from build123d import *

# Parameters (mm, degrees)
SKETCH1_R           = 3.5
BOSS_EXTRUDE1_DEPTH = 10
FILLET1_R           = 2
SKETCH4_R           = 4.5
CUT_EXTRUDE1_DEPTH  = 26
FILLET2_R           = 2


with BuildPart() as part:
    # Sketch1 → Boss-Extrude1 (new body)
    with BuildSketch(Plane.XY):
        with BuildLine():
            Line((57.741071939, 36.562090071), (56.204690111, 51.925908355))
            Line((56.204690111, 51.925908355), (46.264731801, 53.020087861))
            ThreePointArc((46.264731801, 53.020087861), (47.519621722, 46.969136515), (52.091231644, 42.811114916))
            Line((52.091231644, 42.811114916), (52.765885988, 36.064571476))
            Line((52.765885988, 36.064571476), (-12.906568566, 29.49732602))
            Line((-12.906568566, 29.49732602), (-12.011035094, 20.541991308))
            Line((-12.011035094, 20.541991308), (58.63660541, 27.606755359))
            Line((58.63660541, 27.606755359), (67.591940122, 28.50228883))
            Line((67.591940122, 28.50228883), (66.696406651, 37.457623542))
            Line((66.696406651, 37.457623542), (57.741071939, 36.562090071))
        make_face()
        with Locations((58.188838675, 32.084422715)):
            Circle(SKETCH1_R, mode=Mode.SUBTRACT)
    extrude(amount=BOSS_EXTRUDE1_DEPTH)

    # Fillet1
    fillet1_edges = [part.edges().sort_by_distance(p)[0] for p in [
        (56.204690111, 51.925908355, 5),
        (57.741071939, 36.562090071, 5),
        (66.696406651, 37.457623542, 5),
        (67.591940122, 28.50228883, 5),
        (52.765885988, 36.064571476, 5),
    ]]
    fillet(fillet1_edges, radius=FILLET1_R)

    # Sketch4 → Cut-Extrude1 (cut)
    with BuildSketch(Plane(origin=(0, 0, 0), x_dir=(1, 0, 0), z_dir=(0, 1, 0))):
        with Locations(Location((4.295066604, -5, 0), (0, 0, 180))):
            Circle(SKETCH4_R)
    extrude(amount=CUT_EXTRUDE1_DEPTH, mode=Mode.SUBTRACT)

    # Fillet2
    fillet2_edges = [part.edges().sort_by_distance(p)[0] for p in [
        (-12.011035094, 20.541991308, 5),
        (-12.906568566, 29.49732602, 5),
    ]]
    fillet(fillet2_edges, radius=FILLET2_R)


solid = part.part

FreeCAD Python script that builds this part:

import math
import FreeCAD as App
import Part
import Sketcher


def edges_at(feature, points):
    """Names of the edges that pass closest to the given points."""
    edges = feature.Shape.Edges
    near = lambda p: min(range(len(edges)), key=lambda i: edges[i].distToShape(Part.Vertex(*p))[0])
    return sorted({f"Edge{near(p) + 1}" for p in points})

doc = App.newDocument("Part")
body = doc.addObject("PartDesign::Body", "Body")

sketch1 = body.newObject("Sketcher::SketchObject", "Sketch")
sketch1.AttachmentSupport = (doc.getObject("XY_Plane"), [""])
sketch1.MapMode = "FlatFace"
sketch1.addGeometry(Part.LineSegment(App.Vector(57.7, 36.6, 0), App.Vector(56.2, 51.9, 0)), False)
sketch1.addGeometry(Part.LineSegment(App.Vector(56.2, 51.9, 0), App.Vector(46.3, 53, 0)), False)
sketch1.addGeometry(Part.ArcOfCircle(Part.Circle(App.Vector(56.2, 51.9, 0), App.Vector(0, 0, 1), 10), math.radians(174), math.radians(246)), False)
sketch1.addGeometry(Part.LineSegment(App.Vector(52.1, 42.8, 0), App.Vector(52.8, 36.1, 0)), False)
sketch1.addGeometry(Part.LineSegment(App.Vector(52.8, 36.1, 0), App.Vector(-12.9, 29.5, 0)), False)
sketch1.addGeometry(Part.LineSegment(App.Vector(-12.9, 29.5, 0), App.Vector(-12, 20.5, 0)), False)
sketch1.addGeometry(Part.LineSegment(App.Vector(-12, 20.5, 0), App.Vector(58.6, 27.6, 0)), False)
sketch1.addGeometry(Part.LineSegment(App.Vector(58.6, 27.6, 0), App.Vector(67.6, 28.5, 0)), False)
sketch1.addGeometry(Part.LineSegment(App.Vector(67.6, 28.5, 0), App.Vector(66.7, 37.5, 0)), False)
sketch1.addGeometry(Part.LineSegment(App.Vector(66.7, 37.5, 0), App.Vector(57.7, 36.6, 0)), False)
sketch1.addGeometry(Part.Circle(App.Vector(58.2, 32.1, 0), App.Vector(0, 0, 1), 3.5), False)
sketch1.addConstraint(Sketcher.Constraint("Coincident", 0, 2, 1, 1))
sketch1.addConstraint(Sketcher.Constraint("Coincident", 1, 2, 2, 1))
sketch1.addConstraint(Sketcher.Constraint("Coincident", 2, 2, 3, 1))
sketch1.addConstraint(Sketcher.Constraint("Coincident", 3, 2, 4, 1))
sketch1.addConstraint(Sketcher.Constraint("Coincident", 4, 2, 5, 1))
sketch1.addConstraint(Sketcher.Constraint("Coincident", 5, 2, 6, 1))
sketch1.addConstraint(Sketcher.Constraint("Coincident", 6, 2, 7, 1))
sketch1.addConstraint(Sketcher.Constraint("Coincident", 7, 2, 8, 1))
sketch1.addConstraint(Sketcher.Constraint("Coincident", 8, 2, 9, 1))
sketch1.addConstraint(Sketcher.Constraint("Coincident", 9, 2, 0, 1))
sketch1.addConstraint(Sketcher.Constraint("Coincident", 0, 2, 2, 3))
sketch1.addConstraint(Sketcher.Constraint("Parallel", 0, 3))
sketch1.addConstraint(Sketcher.Constraint("Perpendicular", 3, 4))
sketch1.addConstraint(Sketcher.Constraint("Perpendicular", 4, 5))
sketch1.addConstraint(Sketcher.Constraint("Perpendicular", 5, 6))
sketch1.addConstraint(Sketcher.Constraint("Parallel", 6, 7))
sketch1.addConstraint(Sketcher.Constraint("Perpendicular", 7, 8))
sketch1.addConstraint(Sketcher.Constraint("Perpendicular", 8, 9))
sketch1.addConstraint(Sketcher.Constraint("Equal", 5, 7))
sketch1.addConstraint(Sketcher.Constraint("Equal", 7, 8))
sketch1.addConstraint(Sketcher.Constraint("Equal", 8, 9))
sketch1.addConstraint(Sketcher.Constraint("Diameter", 10, 7.0))
sketch1.addConstraint(Sketcher.Constraint("Radius", 2, 10.0))
sketch1.addConstraint(Sketcher.Constraint("Distance", 4, 66.0))
sketch1.addConstraint(Sketcher.Constraint("Distance", 5, 9.0))
sketch1.addConstraint(Sketcher.Constraint("Distance", 6, 71.0))
sketch1.addConstraint(Sketcher.Constraint("DistanceX", 1, 2, 2, 2, 5.8265))
sketch1.addConstraint(Sketcher.Constraint("DistanceX", 4, 2, 1, 2, 59.1713))
sketch1.addConstraint(Sketcher.Constraint("DistanceX", 10, 3, 7, 2, 9.403101))
sketch1.addConstraint(Sketcher.Constraint("DistanceY", 10, 3, 8, 2, 5.373201))
sketch1.addConstraint(Sketcher.Constraint("DistanceX", 6, 2, 8, 2, 8.059801))
sketch1.addConstraint(Sketcher.Constraint("DistanceX", -1, 1, 2, 3, 56.20469))
sketch1.addConstraint(Sketcher.Constraint("DistanceY", -1, 1, 2, 3, 51.925908))
pad1 = body.newObject("PartDesign::Pad", "Pad")
pad1.Profile = sketch1
pad1.Length = 10
doc.recompute()

fillet = body.newObject("PartDesign::Fillet", "Fillet")
fillet.Base = (pad1, edges_at(pad1, [
    (56.205, 51.926, 5),
    (57.741, 36.562, 5),
    (66.696, 37.458, 5),
    (67.592, 28.502, 5),
    (52.766, 36.065, 5),
]))
fillet.Radius = 2

sketch2 = body.newObject("Sketcher::SketchObject", "Sketch001")
sketch2.AttachmentSupport = (doc.getObject("XZ_Plane"), [""])
sketch2.MapMode = "FlatFace"
sketch2.addGeometry(Part.Circle(App.Vector(4.3, 5, 0), App.Vector(0, 0, 1), 4.5), False)
sketch2.addConstraint(Sketcher.Constraint("Diameter", 0, 9.0))
sketch2.addConstraint(Sketcher.Constraint("DistanceY", -1, 1, 0, 3, 5.0))
sketch2.addConstraint(Sketcher.Constraint("DistanceX", -1, 1, 0, 3, 4.295067))
pocket1 = body.newObject("PartDesign::Pocket", "Pocket")
pocket1.Profile = sketch2
pocket1.Length = 26
doc.recompute()

fillet2 = body.newObject("PartDesign::Fillet", "Fillet001")
fillet2.Base = (pocket1, edges_at(pocket1, [(-12.011, 20.542, 5), (-12.907, 29.497, 5)]))
fillet2.Radius = 2

doc.recompute()
